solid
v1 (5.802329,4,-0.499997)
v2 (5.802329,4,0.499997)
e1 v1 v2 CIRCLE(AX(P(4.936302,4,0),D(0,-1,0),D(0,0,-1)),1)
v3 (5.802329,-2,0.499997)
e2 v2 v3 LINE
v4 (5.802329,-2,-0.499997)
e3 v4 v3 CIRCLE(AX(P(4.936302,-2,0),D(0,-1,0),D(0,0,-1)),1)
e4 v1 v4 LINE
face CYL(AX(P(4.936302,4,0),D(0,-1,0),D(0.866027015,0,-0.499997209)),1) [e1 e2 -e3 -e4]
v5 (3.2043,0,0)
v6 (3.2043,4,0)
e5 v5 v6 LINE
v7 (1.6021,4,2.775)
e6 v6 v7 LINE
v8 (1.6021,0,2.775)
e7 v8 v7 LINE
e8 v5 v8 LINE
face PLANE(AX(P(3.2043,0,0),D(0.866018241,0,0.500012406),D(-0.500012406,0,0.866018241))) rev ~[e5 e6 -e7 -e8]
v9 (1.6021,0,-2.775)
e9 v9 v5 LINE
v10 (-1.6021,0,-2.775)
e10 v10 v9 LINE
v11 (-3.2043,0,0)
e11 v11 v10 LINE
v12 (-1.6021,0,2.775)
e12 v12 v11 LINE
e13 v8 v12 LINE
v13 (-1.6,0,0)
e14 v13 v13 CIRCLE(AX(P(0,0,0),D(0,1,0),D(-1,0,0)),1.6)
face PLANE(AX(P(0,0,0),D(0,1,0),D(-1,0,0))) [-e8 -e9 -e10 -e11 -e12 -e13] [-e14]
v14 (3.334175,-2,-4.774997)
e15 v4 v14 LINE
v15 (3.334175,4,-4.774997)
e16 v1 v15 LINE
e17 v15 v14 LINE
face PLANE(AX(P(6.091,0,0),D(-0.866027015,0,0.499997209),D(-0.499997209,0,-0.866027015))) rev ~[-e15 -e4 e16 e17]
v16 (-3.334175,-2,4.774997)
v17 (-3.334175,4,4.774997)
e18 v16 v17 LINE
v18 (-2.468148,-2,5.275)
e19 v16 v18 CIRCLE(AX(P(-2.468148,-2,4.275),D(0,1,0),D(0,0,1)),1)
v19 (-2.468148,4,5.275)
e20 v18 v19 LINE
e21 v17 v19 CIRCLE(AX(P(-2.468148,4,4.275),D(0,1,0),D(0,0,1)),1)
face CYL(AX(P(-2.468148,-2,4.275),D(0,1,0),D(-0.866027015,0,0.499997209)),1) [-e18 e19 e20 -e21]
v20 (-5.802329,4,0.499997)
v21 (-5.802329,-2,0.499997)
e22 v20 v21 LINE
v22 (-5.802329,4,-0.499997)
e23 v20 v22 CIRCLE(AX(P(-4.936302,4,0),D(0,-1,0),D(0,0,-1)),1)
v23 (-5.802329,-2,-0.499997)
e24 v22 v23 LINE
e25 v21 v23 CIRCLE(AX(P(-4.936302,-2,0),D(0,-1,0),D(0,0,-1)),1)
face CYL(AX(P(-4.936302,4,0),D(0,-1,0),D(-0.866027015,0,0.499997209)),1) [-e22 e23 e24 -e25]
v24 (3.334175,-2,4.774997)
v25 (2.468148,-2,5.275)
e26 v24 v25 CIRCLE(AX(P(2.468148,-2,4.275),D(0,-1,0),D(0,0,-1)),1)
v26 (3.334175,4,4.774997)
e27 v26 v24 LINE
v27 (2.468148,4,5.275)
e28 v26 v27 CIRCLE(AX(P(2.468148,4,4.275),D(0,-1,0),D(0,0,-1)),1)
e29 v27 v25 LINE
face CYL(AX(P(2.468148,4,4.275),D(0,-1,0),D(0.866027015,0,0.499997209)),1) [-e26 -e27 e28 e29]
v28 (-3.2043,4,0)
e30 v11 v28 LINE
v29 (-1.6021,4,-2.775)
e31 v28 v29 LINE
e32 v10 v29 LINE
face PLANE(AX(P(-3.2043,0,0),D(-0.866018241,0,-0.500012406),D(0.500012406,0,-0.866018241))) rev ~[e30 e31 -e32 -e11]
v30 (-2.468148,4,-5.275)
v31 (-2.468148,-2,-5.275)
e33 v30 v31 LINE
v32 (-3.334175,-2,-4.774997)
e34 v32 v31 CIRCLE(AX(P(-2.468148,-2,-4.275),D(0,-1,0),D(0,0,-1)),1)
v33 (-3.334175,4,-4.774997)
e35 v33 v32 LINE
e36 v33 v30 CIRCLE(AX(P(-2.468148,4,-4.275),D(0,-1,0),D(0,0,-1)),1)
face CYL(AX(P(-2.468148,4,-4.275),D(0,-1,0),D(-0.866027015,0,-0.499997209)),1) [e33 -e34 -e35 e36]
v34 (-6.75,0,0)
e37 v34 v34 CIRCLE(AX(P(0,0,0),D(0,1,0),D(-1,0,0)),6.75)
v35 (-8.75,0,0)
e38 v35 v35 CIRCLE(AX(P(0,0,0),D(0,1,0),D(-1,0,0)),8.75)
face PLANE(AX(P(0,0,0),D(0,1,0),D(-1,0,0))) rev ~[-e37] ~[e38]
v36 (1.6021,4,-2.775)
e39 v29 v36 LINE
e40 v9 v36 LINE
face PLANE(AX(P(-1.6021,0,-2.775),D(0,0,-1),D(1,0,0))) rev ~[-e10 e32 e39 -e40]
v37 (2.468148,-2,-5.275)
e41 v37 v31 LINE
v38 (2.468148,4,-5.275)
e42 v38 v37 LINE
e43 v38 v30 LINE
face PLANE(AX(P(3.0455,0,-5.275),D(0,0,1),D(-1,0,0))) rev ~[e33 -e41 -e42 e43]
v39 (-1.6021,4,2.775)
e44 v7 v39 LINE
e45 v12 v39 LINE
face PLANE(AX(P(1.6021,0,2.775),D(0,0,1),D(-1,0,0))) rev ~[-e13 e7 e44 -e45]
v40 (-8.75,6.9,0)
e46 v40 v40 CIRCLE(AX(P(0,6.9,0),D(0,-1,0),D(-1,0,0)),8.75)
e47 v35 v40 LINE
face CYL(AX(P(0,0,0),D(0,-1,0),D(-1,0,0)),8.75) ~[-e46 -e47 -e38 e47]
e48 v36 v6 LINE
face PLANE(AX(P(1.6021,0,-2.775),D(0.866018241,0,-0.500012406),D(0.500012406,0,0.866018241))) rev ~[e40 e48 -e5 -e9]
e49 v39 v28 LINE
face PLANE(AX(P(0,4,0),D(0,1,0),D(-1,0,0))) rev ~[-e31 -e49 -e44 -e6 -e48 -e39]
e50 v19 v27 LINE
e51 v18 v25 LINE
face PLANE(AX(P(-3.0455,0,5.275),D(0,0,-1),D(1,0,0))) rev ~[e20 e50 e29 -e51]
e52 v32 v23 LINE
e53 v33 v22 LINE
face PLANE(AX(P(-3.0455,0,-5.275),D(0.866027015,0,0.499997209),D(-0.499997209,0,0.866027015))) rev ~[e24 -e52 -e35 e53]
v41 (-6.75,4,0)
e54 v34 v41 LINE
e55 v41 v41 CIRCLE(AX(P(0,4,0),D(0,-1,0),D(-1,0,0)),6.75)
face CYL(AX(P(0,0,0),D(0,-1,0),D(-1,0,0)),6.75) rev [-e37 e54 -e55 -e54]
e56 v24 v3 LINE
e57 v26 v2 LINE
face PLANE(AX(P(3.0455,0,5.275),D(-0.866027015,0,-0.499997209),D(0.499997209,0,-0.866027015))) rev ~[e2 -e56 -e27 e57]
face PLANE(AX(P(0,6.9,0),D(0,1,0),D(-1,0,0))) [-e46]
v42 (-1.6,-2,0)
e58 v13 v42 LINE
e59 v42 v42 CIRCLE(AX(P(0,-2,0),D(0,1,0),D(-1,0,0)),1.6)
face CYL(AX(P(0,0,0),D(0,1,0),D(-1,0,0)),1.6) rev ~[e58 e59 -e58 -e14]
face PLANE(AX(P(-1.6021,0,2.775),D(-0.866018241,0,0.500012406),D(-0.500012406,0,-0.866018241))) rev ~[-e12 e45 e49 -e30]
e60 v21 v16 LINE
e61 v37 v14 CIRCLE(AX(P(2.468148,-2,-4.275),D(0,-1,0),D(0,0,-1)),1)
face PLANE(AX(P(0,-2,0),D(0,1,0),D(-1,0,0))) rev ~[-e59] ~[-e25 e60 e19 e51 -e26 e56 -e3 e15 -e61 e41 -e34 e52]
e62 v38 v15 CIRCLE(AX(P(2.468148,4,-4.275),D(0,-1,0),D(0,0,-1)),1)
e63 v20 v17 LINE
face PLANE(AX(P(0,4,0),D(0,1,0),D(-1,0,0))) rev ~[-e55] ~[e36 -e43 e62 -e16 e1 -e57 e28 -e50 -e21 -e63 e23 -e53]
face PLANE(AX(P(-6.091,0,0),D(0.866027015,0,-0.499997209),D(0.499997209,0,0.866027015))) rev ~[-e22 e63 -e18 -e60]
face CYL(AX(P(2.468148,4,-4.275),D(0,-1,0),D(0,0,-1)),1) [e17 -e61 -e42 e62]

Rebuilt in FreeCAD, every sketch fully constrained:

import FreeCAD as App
import Part
import Sketcher
from FreeCAD import Vector
Q = App.Units.Quantity


def edges_at(feature, points):
    """Names of the edges that pass closest to the given points."""
    edges = feature.Shape.Edges
    near = lambda p: min(range(len(edges)), key=lambda i: edges[i].distToShape(Part.Vertex(*p))[0])
    return sorted({f"Edge{near(p) + 1}" for p in points})


def add_polygon(sketch, points):
    """Adds a closed chain of lines whose ends are joined by coincident constraints."""
    first, n = sketch.GeometryCount, len(points)
    for a, b in zip(points, points[1:] + points[:1]):
        sketch.addGeometry(Part.LineSegment(App.Vector(*a, 0), App.Vector(*b, 0)), False)
    for i in range(n):
        sketch.addConstraint(Sketcher.Constraint("Coincident", first + i, 2, first + (i + 1) % n, 1))

doc = App.newDocument("Part")
params = doc.addObject("Spreadsheet::Sheet", "Params")
for row, (alias, value) in enumerate([
    ("sketch1_diameter", "17.5 mm"),
    ("pad1_length", "6.9 mm"),
    ("sketch2_diameter", "3.2 mm"),
    ("pad2_length", "2 mm"),
    ("sketch3_diameter", "13.5 mm"),
    ("pocket1_length", "4 mm"),
    ("fillet_radius", "1 mm"),
], start=1):
    params.set(f"A{row}", alias)
    params.set(f"B{row}", "=" + value)
    params.setAlias(f"B{row}", alias)

body = doc.addObject("PartDesign::Body", "Body")

# Sketch on XZ plane
sketch1 = doc.addObject("Sketcher::SketchObject", "Sketch")
body.addObject(sketch1)
sketch1.AttachmentSupport = (doc.XZ_Plane, [""])
sketch1.MapMode = "FlatFace"
sketch1.addGeometry(Part.Circle(Vector(0, 0, 0), Vector(0, 0, 1), 9), False)
sketch1.addConstraint([
    Sketcher.Constraint("Coincident", 0, 3, -1, 1),
    Sketcher.Constraint("Diameter", 0, 17.5),
])
sketch1.setExpression("Constraints[1]", "Params.sketch1_diameter")
pad1 = doc.addObject("PartDesign::Pad", "Pad")
body.addObject(pad1)
pad1.Profile = sketch1
pad1.setExpression("Length", "Params.pad1_length")
pad1.Reversed = True

# Sketch on XZ plane
sketch2 = doc.addObject("Sketcher::SketchObject", "Sketch001")
body.addObject(sketch2)
sketch2.AttachmentSupport = (doc.XZ_Plane, [""])
sketch2.MapMode = "FlatFace"
add_polygon(sketch2, [(-3, -5.3), (-6.1, 0), (-3, 5.3), (3, 5.3), (6.1, 0), (3, -5.3)])  # lines 0-5
sketch2.addGeometry(Part.Circle(Vector(0, 0, 0), Vector(0, 0, 1), 1.6), False)  # 6
sketch2.addConstraint([
    Sketcher.Constraint("Horizontal", 2),
    Sketcher.Constraint("Horizontal", 5),
    Sketcher.Constraint("Coincident", 6, 3, -1, 1),
    Sketcher.Constraint("Symmetric", 0, 2, 3, 2, -1, 1),
    Sketcher.Constraint("Symmetric", 1, 2, 4, 2, -1, 1),
    Sketcher.Constraint("PointOnObject", 0, 2, -1),
    Sketcher.Constraint("Parallel", 0, 3),
    Sketcher.Constraint("Vertical", 2, 2, 4, 2),
    Sketcher.Constraint("Diameter", 6, 3.2),
    Sketcher.Constraint("Angle", 0, Q("119.9998 deg")),
    Sketcher.Constraint("DistanceX", 2, 1, 2, 2, 6.091),
    Sketcher.Constraint("DistanceY", 4, 2, 2, 2, 10.55),
])
sketch2.setExpression("Constraints[14]", "Params.sketch2_diameter")
pad2 = doc.addObject("PartDesign::Pad", "Pad001")
body.addObject(pad2)
pad2.Profile = sketch2
pad2.setExpression("Length", "Params.pad2_length")

# Sketch on XZ plane
sketch3 = doc.addObject("Sketcher::SketchObject", "Sketch002")
body.addObject(sketch3)
sketch3.AttachmentSupport = (doc.XZ_Plane, [""])
sketch3.MapMode = "FlatFace"
sketch3.addGeometry(Part.Circle(Vector(0, 0, 0), Vector(0, 0, 1), 6.8), False)  # 0
add_polygon(sketch3, [(-3, 5.3), (-6.1, 0), (-3, -5.3), (3, -5.3), (6.1, 0), (3, 5.3)])  # lines 1-6
add_polygon(sketch3, [(3.2, 0), (1.6, -2.8), (-1.6, -2.8), (-3.2, 0), (-1.6, 2.8), (1.6, 2.8)])  # lines 7-12
sketch3.addConstraint([
    Sketcher.Constraint("Horizontal", 3),
    Sketcher.Constraint("Horizontal", 6),
    Sketcher.Constraint("Horizontal", 8),
    Sketcher.Constraint("Horizontal", 11),
    Sketcher.Constraint("Coincident", 0, 3, -1, 1),
    Sketcher.Constraint("Symmetric", 1, 2, 4, 2, -1, 1),
    Sketcher.Constraint("Symmetric", 2, 2, 5, 2, -1, 1),
    Sketcher.Constraint("Symmetric", 7, 2, 10, 2, -1, 1),
    Sketcher.Constraint("Symmetric", 9, 2, 12, 2, -1, 1),
    Sketcher.Constraint("PointOnObject", 1, 2, -1),
    Sketcher.Constraint("PointOnObject", 9, 2, -1),
    Sketcher.Constraint("Parallel", 1, 4),
    Sketcher.Constraint("Parallel", 4, 7),
    Sketcher.Constraint("Parallel", 5, 9),
    Sketcher.Constraint("Parallel", 9, 12),
    Sketcher.Constraint("Vertical", 3, 2, 5, 2),
    Sketcher.Constraint("Diameter", 0, 13.5),
    Sketcher.Constraint("DistanceY", 3, 2, 7, 2, 2.5),
    Sketcher.Constraint("Angle", 1, Q("-119.9998 deg")),
    Sketcher.Constraint("DistanceX", 3, 1, 3, 2, 6.091),
    Sketcher.Constraint("DistanceY", 3, 2, 5, 2, 10.55),
    Sketcher.Constraint("DistanceX", 8, 2, 8, 1, 3.2042),
])
sketch3.setExpression("Constraints[28]", "Params.sketch3_diameter")
pocket1 = doc.addObject("PartDesign::Pocket", "Pocket")
body.addObject(pocket1)
pocket1.Profile = sketch3
pocket1.setExpression("Length", "Params.pocket1_length")
doc.recompute()

fillet = doc.addObject("PartDesign::Fillet", "Fillet")
body.addObject(fillet)
fillet.Base = (pocket1, edges_at(pocket1, [
    (6.091, 1, 0),
    (-3.046, 1, 5.275),
    (3.046, 1, -5.275),
    (-3.046, 1, -5.275),
    (-6.091, 1, 0),
    (3.046, 1, 5.275),
]))
fillet.setExpression("Radius", "Params.fillet_radius")

doc.recompute()
